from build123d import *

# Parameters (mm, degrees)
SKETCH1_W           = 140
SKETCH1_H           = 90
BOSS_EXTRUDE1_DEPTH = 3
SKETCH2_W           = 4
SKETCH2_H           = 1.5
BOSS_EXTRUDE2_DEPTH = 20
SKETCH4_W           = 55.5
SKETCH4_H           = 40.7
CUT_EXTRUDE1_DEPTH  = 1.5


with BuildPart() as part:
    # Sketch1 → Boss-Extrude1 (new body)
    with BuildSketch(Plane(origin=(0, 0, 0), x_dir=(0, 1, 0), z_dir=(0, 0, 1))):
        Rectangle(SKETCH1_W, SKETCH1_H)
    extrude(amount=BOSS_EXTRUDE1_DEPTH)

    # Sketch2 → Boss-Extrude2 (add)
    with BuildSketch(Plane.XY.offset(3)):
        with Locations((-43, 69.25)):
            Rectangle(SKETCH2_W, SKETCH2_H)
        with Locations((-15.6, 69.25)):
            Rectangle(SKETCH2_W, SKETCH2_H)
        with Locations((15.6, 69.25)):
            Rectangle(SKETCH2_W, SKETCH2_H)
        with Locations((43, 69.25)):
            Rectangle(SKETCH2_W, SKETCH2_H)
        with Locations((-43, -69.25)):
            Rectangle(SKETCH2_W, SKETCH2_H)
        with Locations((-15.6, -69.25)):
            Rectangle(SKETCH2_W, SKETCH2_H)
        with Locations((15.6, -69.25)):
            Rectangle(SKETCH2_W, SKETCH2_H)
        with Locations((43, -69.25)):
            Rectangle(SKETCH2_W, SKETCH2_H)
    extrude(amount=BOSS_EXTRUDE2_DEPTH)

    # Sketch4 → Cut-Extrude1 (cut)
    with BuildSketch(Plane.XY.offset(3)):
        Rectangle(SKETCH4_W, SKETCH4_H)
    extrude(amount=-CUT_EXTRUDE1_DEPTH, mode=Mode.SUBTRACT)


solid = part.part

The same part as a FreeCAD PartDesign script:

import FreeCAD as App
import Part
import Sketcher

V = App.Vector


def add_polygon(sketch, points):
    """Adds a closed chain of lines whose ends are joined by coincident constraints."""
    first, n = sketch.GeometryCount, len(points)
    for a, b in zip(points, points[1:] + points[:1]):
        sketch.addGeometry(Part.LineSegment(App.Vector(*a, 0), App.Vector(*b, 0)), False)
    for i in range(n):
        sketch.addConstraint(Sketcher.Constraint("Coincident", first + i, 2, first + (i + 1) % n, 1))

doc = App.newDocument("Part")
body = doc.addObject("PartDesign::Body", "Body")

# Sketch on XY plane
sketch1 = body.newObject("Sketcher::SketchObject", "Sketch")
sketch1.AttachmentSupport = (doc.getObject("XY_Plane"), [""])
sketch1.MapMode = "FlatFace"
add_polygon(sketch1, [(-45, -70), (45, -70), (45, 70), (-45, 70)])  # lines 0-3
sketch1.addConstraint([
    Sketcher.Constraint("Horizontal", 0),
    Sketcher.Constraint("Vertical", 1),
    Sketcher.Constraint("Horizontal", 2),
    Sketcher.Constraint("Vertical", 3),
    Sketcher.Constraint("Symmetric", 0, 2, 2, 2, -1, 1),
    Sketcher.Constraint("DistanceX", 0, 1, 0, 2, 90.0),
    Sketcher.Constraint("DistanceY", 1, 1, 1, 2, 140.0),
])
pad1 = body.newObject("PartDesign::Pad", "Pad")
pad1.Profile = sketch1
pad1.Length = 3

# Sketch on XY plane
sketch2 = body.newObject("Sketcher::SketchObject", "Sketch001")
sketch2.AttachmentSupport = (doc.getObject("XY_Plane"), [""])
sketch2.MapMode = "FlatFace"
sketch2.AttachmentOffset = App.Placement(V(0, 0, 3), App.Rotation())
add_polygon(sketch2, [(-45, 70), (-45, 68.5), (-41, 68.5), (-41, 70)])  # lines 0-3
add_polygon(sketch2, [(-17.6, 70), (-17.6, 68.5), (-13.6, 68.5), (-13.6, 70)])  # lines 4-7
add_polygon(sketch2, [(13.6, 70), (13.6, 68.5), (17.6, 68.5), (17.6, 70)])  # lines 8-11
add_polygon(sketch2, [(41, 70), (41, 68.5), (45, 68.5), (45, 70)])  # lines 12-15
add_polygon(sketch2, [(-45, -68.5), (-45, -70), (-41, -70), (-41, -68.5)])  # lines 16-19
add_polygon(sketch2, [(-17.6, -68.5), (-17.6, -70), (-13.6, -70), (-13.6, -68.5)])  # lines 20-23
add_polygon(sketch2, [(13.6, -68.5), (13.6, -70), (17.6, -70), (17.6, -68.5)])  # lines 24-27
add_polygon(sketch2, [(41, -68.5), (41, -70), (45, -70), (45, -68.5)])  # lines 28-31
sketch2.addConstraint([
    Sketcher.Constraint("Vertical", 0),
    Sketcher.Constraint("Horizontal", 1),
    Sketcher.Constraint("Vertical", 2),
    Sketcher.Constraint("Horizontal", 3),
    Sketcher.Constraint("Vertical", 4),
    Sketcher.Constraint("Horizontal", 5),
    Sketcher.Constraint("Vertical", 6),
    Sketcher.Constraint("Horizontal", 7),
    Sketcher.Constraint("Vertical", 8),
    Sketcher.Constraint("Horizontal", 9),
    Sketcher.Constraint("Vertical", 10),
    Sketcher.Constraint("Horizontal", 11),
    Sketcher.Constraint("Vertical", 12),
    Sketcher.Constraint("Horizontal", 13),
    Sketcher.Constraint("Vertical", 14),
    Sketcher.Constraint("Horizontal", 15),
    Sketcher.Constraint("Vertical", 16),
    Sketcher.Constraint("Horizontal", 17),
    Sketcher.Constraint("Vertical", 18),
    Sketcher.Constraint("Horizontal", 19),
    Sketcher.Constraint("Vertical", 20),
    Sketcher.Constraint("Horizontal", 21),
    Sketcher.Constraint("Vertical", 22),
    Sketcher.Constraint("Horizontal", 23),
    Sketcher.Constraint("Vertical", 24),
    Sketcher.Constraint("Horizontal", 25),
    Sketcher.Constraint("Vertical", 26),
    Sketcher.Constraint("Horizontal", 27),
    Sketcher.Constraint("Vertical", 28),
    Sketcher.Constraint("Horizontal", 29),
    Sketcher.Constraint("Vertical", 30),
    Sketcher.Constraint("Horizontal", 31),
    Sketcher.Constraint("Symmetric", 14, 2, 16, 2, -1, 1),
    Sketcher.Constraint("Symmetric", 12, 2, 18, 2, -1, 1),
    Sketcher.Constraint("Symmetric", 10, 2, 20, 2, -1, 1),
    Sketcher.Constraint("Symmetric", 8, 2, 22, 2, -1, 1),
    Sketcher.Constraint("Symmetric", 6, 2, 24, 2, -1, 1),
    Sketcher.Constraint("Symmetric", 4, 2, 26, 2, -1, 1),
    Sketcher.Constraint("Symmetric", 2, 2, 28, 2, -1, 1),
    Sketcher.Constraint("Symmetric", 0, 2, 30, 2, -1, 1),
    Sketcher.Constraint("Symmetric", 5, 2, 8, 2, -2),
    Sketcher.Constraint("Symmetric", 7, 2, 10, 2, -2),
    Sketcher.Constraint("Symmetric", 1, 2, 12, 2, -2),
    Sketcher.Constraint("Symmetric", 3, 2, 14, 2, -2),
    Sketcher.Constraint("Horizontal", 1, 2, 4, 2),
    Sketcher.Constraint("Horizontal", 3, 2, 6, 2),
    Sketcher.Constraint("Equal", 3, 5),
    Sketcher.Constraint("DistanceX", 1, 1, 1, 2, 4.0),
    Sketcher.Constraint("DistanceY", 0, 2, 0, 1, 1.5),
    Sketcher.Constraint("DistanceX", 0, 2, -1, 1, 45.0),
    Sketcher.Constraint("DistanceY", -1, 1, 2, 2, 70.0),
    Sketcher.Constraint("DistanceX", 4, 2, -1, 1, 17.6),
])
pad2 = body.newObject("PartDesign::Pad", "Pad001")
pad2.Profile = sketch2
pad2.Length = 20

# Sketch on XY plane
sketch3 = body.newObject("Sketcher::SketchObject", "Sketch002")
sketch3.AttachmentSupport = (doc.getObject("XY_Plane"), [""])
sketch3.MapMode = "FlatFace"
sketch3.AttachmentOffset = App.Placement(V(0, 0, 3), App.Rotation())
add_polygon(sketch3, [(-28, 20), (-28, -20), (28, -20), (28, 20)])  # lines 0-3
sketch3.addConstraint([
    Sketcher.Constraint("Vertical", 0),
    Sketcher.Constraint("Horizontal", 1),
    Sketcher.Constraint("Vertical", 2),
    Sketcher.Constraint("Horizontal", 3),
    Sketcher.Constraint("Symmetric", 0, 2, 2, 2, -1, 1),
    Sketcher.Constraint("DistanceX", 1, 1, 1, 2, 55.5),
    Sketcher.Constraint("DistanceY", 0, 2, 0, 1, 40.7),
])
pocket1 = body.newObject("PartDesign::Pocket", "Pocket")
pocket1.Profile = sketch3
pocket1.Length = 1.5

doc.recompute()
